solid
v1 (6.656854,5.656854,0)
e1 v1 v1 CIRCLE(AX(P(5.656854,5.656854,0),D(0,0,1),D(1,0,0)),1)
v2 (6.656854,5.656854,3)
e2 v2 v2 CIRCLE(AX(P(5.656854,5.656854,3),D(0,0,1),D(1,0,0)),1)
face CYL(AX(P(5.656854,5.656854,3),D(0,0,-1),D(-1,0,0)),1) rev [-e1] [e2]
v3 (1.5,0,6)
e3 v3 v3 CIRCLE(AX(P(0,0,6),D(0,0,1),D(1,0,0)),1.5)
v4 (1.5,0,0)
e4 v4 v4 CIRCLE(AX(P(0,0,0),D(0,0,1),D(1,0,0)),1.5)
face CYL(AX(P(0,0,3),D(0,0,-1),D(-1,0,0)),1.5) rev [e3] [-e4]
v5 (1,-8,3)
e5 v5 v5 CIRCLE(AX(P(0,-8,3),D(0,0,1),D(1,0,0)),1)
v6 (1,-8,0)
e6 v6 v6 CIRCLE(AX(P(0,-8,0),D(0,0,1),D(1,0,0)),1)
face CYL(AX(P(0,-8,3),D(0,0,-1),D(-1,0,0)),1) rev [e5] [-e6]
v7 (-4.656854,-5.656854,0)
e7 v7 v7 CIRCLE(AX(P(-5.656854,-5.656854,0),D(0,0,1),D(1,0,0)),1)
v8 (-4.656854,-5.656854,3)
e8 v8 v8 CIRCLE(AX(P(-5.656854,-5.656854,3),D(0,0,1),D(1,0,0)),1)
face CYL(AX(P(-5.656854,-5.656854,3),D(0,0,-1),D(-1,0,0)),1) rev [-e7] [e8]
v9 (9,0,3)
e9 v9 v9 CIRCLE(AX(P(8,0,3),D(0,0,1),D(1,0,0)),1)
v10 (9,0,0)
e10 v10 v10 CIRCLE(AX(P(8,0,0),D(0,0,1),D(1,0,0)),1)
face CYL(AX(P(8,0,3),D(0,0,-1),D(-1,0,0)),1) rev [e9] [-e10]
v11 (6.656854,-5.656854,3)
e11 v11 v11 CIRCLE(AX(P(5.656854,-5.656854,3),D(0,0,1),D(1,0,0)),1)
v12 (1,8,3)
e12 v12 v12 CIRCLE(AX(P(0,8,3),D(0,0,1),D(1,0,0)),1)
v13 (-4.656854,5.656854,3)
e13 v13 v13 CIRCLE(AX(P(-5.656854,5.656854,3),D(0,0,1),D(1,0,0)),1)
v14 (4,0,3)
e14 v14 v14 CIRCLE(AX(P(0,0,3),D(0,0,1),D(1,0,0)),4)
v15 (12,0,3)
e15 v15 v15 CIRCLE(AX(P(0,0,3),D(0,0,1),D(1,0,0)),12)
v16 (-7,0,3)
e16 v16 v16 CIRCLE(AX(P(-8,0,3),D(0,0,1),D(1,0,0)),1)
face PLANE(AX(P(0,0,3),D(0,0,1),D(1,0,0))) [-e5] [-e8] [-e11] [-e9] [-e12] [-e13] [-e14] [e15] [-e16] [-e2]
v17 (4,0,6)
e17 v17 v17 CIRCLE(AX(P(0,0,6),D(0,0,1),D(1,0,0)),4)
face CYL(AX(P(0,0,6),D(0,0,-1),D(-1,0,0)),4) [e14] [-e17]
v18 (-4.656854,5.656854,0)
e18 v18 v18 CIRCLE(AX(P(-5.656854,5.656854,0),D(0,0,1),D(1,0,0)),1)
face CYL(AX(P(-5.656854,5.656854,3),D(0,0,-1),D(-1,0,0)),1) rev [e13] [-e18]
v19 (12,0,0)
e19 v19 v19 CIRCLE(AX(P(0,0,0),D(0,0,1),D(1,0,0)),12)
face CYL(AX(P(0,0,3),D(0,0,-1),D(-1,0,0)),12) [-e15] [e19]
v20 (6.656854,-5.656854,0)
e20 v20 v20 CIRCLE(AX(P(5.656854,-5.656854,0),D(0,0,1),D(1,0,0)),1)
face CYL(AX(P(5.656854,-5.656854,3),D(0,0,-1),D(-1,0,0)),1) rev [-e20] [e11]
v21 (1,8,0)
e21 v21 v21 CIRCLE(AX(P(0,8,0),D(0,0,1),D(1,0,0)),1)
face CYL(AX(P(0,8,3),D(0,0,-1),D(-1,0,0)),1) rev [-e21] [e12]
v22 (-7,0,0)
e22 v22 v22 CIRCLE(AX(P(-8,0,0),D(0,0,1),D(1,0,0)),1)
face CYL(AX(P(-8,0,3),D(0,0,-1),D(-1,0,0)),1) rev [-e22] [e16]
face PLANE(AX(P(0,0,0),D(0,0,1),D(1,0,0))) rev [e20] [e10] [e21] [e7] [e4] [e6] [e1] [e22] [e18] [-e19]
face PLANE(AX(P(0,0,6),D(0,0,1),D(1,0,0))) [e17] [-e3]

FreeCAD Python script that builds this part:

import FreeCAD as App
import Part
import Sketcher
from FreeCAD import Vector
Q = App.Units.Quantity

doc = App.newDocument("Part")
body = doc.addObject("PartDesign::Body", "Body")

sketch1 = body.newObject("Sketcher::SketchObject", "Sketch")
sketch1.AttachmentSupport = (doc.getObject("XY_Plane"), [""])
sketch1.MapMode = "FlatFace"
sketch1.addGeometry([
    Part.Circle(Vector(0, 0, 0), Vector(0, 0, 1), 12),
    Part.Circle(Vector(-5.656854, -5.656854, 0), Vector(0, 0, 1), 1),
    Part.Circle(Vector(0, -8, 0), Vector(0, 0, 1), 1),
    Part.Circle(Vector(5.656854, -5.656854, 0), Vector(0, 0, 1), 1),
    Part.Circle(Vector(-8, 0, 0), Vector(0, 0, 1), 1),
    Part.Circle(Vector(-5.656854, 5.656854, 0), Vector(0, 0, 1), 1),
    Part.Circle(Vector(0, 0, 0), Vector(0, 0, 1), 1.5),
    Part.Circle(Vector(8, 0, 0), Vector(0, 0, 1), 1),
    Part.Circle(Vector(0, 8, 0), Vector(0, 0, 1), 1),
    Part.Circle(Vector(5.656854, 5.656854, 0), Vector(0, 0, 1), 1),
], False)
sketch1.addConstraint([
    Sketcher.Constraint("Coincident", 0, 3, -1, 1),
    Sketcher.Constraint("Coincident", 6, 3, -1, 1),
    Sketcher.Constraint("Equal", 1, 2),
    Sketcher.Constraint("Equal", 2, 3),
    Sketcher.Constraint("Equal", 3, 4),
    Sketcher.Constraint("Equal", 4, 5),
    Sketcher.Constraint("Equal", 5, 7),
    Sketcher.Constraint("Equal", 7, 8),
    Sketcher.Constraint("Equal", 8, 9),
    Sketcher.Constraint("Symmetric", 3, 3, 5, 3, -1, 1),
    Sketcher.Constraint("Symmetric", 4, 3, 7, 3, -1, 1),
    Sketcher.Constraint("Symmetric", 2, 3, 8, 3, -1, 1),
    Sketcher.Constraint("Symmetric", 1, 3, 9, 3, -1, 1),
    Sketcher.Constraint("Symmetric", 1, 3, 3, 3, -2),
    Sketcher.Constraint("PointOnObject", 2, 3, -2),
    Sketcher.Constraint("PointOnObject", 4, 3, -1),
    Sketcher.Constraint("Diameter", 0, Q("24 mm")),
    Sketcher.Constraint("Diameter", 1, Q("2 mm")),
    Sketcher.Constraint("Diameter", 6, Q("3 mm")),
    Sketcher.Constraint("DistanceY", 2, 3, -1, 1, Q("8 mm")),
    Sketcher.Constraint("DistanceX", 4, 3, -1, 1, Q("8 mm")),
    Sketcher.Constraint("DistanceX", 1, 3, 3, 3, Q("11.313708 mm")),
    Sketcher.Constraint("DistanceY", 1, 3, 5, 3, Q("11.313708 mm")),
])
pad1 = body.newObject("PartDesign::Pad", "Pad")
pad1.Profile = sketch1
pad1.Length = 3

sketch2 = body.newObject("Sketcher::SketchObject", "Sketch001")
sketch2.AttachmentSupport = (doc.getObject("XY_Plane"), [""])
sketch2.MapMode = "FlatFace"
sketch2.AttachmentOffset = App.Placement(Vector(0, 0, 3), App.Rotation())
sketch2.addGeometry([
    Part.Circle(Vector(0, 0, 0), Vector(0, 0, 1), 4),
    Part.Circle(Vector(0, 0, 0), Vector(0, 0, 1), 1.5),
], False)
sketch2.addConstraint([
    Sketcher.Constraint("Coincident", 0, 3, -1, 1),
    Sketcher.Constraint("Coincident", 1, 3, -1, 1),
    Sketcher.Constraint("Diameter", 0, Q("8 mm")),
    Sketcher.Constraint("Diameter", 1, Q("3 mm")),
])
pad2 = body.newObject("PartDesign::Pad", "Pad001")
pad2.Profile = sketch2
pad2.Length = 3

doc.recompute()
